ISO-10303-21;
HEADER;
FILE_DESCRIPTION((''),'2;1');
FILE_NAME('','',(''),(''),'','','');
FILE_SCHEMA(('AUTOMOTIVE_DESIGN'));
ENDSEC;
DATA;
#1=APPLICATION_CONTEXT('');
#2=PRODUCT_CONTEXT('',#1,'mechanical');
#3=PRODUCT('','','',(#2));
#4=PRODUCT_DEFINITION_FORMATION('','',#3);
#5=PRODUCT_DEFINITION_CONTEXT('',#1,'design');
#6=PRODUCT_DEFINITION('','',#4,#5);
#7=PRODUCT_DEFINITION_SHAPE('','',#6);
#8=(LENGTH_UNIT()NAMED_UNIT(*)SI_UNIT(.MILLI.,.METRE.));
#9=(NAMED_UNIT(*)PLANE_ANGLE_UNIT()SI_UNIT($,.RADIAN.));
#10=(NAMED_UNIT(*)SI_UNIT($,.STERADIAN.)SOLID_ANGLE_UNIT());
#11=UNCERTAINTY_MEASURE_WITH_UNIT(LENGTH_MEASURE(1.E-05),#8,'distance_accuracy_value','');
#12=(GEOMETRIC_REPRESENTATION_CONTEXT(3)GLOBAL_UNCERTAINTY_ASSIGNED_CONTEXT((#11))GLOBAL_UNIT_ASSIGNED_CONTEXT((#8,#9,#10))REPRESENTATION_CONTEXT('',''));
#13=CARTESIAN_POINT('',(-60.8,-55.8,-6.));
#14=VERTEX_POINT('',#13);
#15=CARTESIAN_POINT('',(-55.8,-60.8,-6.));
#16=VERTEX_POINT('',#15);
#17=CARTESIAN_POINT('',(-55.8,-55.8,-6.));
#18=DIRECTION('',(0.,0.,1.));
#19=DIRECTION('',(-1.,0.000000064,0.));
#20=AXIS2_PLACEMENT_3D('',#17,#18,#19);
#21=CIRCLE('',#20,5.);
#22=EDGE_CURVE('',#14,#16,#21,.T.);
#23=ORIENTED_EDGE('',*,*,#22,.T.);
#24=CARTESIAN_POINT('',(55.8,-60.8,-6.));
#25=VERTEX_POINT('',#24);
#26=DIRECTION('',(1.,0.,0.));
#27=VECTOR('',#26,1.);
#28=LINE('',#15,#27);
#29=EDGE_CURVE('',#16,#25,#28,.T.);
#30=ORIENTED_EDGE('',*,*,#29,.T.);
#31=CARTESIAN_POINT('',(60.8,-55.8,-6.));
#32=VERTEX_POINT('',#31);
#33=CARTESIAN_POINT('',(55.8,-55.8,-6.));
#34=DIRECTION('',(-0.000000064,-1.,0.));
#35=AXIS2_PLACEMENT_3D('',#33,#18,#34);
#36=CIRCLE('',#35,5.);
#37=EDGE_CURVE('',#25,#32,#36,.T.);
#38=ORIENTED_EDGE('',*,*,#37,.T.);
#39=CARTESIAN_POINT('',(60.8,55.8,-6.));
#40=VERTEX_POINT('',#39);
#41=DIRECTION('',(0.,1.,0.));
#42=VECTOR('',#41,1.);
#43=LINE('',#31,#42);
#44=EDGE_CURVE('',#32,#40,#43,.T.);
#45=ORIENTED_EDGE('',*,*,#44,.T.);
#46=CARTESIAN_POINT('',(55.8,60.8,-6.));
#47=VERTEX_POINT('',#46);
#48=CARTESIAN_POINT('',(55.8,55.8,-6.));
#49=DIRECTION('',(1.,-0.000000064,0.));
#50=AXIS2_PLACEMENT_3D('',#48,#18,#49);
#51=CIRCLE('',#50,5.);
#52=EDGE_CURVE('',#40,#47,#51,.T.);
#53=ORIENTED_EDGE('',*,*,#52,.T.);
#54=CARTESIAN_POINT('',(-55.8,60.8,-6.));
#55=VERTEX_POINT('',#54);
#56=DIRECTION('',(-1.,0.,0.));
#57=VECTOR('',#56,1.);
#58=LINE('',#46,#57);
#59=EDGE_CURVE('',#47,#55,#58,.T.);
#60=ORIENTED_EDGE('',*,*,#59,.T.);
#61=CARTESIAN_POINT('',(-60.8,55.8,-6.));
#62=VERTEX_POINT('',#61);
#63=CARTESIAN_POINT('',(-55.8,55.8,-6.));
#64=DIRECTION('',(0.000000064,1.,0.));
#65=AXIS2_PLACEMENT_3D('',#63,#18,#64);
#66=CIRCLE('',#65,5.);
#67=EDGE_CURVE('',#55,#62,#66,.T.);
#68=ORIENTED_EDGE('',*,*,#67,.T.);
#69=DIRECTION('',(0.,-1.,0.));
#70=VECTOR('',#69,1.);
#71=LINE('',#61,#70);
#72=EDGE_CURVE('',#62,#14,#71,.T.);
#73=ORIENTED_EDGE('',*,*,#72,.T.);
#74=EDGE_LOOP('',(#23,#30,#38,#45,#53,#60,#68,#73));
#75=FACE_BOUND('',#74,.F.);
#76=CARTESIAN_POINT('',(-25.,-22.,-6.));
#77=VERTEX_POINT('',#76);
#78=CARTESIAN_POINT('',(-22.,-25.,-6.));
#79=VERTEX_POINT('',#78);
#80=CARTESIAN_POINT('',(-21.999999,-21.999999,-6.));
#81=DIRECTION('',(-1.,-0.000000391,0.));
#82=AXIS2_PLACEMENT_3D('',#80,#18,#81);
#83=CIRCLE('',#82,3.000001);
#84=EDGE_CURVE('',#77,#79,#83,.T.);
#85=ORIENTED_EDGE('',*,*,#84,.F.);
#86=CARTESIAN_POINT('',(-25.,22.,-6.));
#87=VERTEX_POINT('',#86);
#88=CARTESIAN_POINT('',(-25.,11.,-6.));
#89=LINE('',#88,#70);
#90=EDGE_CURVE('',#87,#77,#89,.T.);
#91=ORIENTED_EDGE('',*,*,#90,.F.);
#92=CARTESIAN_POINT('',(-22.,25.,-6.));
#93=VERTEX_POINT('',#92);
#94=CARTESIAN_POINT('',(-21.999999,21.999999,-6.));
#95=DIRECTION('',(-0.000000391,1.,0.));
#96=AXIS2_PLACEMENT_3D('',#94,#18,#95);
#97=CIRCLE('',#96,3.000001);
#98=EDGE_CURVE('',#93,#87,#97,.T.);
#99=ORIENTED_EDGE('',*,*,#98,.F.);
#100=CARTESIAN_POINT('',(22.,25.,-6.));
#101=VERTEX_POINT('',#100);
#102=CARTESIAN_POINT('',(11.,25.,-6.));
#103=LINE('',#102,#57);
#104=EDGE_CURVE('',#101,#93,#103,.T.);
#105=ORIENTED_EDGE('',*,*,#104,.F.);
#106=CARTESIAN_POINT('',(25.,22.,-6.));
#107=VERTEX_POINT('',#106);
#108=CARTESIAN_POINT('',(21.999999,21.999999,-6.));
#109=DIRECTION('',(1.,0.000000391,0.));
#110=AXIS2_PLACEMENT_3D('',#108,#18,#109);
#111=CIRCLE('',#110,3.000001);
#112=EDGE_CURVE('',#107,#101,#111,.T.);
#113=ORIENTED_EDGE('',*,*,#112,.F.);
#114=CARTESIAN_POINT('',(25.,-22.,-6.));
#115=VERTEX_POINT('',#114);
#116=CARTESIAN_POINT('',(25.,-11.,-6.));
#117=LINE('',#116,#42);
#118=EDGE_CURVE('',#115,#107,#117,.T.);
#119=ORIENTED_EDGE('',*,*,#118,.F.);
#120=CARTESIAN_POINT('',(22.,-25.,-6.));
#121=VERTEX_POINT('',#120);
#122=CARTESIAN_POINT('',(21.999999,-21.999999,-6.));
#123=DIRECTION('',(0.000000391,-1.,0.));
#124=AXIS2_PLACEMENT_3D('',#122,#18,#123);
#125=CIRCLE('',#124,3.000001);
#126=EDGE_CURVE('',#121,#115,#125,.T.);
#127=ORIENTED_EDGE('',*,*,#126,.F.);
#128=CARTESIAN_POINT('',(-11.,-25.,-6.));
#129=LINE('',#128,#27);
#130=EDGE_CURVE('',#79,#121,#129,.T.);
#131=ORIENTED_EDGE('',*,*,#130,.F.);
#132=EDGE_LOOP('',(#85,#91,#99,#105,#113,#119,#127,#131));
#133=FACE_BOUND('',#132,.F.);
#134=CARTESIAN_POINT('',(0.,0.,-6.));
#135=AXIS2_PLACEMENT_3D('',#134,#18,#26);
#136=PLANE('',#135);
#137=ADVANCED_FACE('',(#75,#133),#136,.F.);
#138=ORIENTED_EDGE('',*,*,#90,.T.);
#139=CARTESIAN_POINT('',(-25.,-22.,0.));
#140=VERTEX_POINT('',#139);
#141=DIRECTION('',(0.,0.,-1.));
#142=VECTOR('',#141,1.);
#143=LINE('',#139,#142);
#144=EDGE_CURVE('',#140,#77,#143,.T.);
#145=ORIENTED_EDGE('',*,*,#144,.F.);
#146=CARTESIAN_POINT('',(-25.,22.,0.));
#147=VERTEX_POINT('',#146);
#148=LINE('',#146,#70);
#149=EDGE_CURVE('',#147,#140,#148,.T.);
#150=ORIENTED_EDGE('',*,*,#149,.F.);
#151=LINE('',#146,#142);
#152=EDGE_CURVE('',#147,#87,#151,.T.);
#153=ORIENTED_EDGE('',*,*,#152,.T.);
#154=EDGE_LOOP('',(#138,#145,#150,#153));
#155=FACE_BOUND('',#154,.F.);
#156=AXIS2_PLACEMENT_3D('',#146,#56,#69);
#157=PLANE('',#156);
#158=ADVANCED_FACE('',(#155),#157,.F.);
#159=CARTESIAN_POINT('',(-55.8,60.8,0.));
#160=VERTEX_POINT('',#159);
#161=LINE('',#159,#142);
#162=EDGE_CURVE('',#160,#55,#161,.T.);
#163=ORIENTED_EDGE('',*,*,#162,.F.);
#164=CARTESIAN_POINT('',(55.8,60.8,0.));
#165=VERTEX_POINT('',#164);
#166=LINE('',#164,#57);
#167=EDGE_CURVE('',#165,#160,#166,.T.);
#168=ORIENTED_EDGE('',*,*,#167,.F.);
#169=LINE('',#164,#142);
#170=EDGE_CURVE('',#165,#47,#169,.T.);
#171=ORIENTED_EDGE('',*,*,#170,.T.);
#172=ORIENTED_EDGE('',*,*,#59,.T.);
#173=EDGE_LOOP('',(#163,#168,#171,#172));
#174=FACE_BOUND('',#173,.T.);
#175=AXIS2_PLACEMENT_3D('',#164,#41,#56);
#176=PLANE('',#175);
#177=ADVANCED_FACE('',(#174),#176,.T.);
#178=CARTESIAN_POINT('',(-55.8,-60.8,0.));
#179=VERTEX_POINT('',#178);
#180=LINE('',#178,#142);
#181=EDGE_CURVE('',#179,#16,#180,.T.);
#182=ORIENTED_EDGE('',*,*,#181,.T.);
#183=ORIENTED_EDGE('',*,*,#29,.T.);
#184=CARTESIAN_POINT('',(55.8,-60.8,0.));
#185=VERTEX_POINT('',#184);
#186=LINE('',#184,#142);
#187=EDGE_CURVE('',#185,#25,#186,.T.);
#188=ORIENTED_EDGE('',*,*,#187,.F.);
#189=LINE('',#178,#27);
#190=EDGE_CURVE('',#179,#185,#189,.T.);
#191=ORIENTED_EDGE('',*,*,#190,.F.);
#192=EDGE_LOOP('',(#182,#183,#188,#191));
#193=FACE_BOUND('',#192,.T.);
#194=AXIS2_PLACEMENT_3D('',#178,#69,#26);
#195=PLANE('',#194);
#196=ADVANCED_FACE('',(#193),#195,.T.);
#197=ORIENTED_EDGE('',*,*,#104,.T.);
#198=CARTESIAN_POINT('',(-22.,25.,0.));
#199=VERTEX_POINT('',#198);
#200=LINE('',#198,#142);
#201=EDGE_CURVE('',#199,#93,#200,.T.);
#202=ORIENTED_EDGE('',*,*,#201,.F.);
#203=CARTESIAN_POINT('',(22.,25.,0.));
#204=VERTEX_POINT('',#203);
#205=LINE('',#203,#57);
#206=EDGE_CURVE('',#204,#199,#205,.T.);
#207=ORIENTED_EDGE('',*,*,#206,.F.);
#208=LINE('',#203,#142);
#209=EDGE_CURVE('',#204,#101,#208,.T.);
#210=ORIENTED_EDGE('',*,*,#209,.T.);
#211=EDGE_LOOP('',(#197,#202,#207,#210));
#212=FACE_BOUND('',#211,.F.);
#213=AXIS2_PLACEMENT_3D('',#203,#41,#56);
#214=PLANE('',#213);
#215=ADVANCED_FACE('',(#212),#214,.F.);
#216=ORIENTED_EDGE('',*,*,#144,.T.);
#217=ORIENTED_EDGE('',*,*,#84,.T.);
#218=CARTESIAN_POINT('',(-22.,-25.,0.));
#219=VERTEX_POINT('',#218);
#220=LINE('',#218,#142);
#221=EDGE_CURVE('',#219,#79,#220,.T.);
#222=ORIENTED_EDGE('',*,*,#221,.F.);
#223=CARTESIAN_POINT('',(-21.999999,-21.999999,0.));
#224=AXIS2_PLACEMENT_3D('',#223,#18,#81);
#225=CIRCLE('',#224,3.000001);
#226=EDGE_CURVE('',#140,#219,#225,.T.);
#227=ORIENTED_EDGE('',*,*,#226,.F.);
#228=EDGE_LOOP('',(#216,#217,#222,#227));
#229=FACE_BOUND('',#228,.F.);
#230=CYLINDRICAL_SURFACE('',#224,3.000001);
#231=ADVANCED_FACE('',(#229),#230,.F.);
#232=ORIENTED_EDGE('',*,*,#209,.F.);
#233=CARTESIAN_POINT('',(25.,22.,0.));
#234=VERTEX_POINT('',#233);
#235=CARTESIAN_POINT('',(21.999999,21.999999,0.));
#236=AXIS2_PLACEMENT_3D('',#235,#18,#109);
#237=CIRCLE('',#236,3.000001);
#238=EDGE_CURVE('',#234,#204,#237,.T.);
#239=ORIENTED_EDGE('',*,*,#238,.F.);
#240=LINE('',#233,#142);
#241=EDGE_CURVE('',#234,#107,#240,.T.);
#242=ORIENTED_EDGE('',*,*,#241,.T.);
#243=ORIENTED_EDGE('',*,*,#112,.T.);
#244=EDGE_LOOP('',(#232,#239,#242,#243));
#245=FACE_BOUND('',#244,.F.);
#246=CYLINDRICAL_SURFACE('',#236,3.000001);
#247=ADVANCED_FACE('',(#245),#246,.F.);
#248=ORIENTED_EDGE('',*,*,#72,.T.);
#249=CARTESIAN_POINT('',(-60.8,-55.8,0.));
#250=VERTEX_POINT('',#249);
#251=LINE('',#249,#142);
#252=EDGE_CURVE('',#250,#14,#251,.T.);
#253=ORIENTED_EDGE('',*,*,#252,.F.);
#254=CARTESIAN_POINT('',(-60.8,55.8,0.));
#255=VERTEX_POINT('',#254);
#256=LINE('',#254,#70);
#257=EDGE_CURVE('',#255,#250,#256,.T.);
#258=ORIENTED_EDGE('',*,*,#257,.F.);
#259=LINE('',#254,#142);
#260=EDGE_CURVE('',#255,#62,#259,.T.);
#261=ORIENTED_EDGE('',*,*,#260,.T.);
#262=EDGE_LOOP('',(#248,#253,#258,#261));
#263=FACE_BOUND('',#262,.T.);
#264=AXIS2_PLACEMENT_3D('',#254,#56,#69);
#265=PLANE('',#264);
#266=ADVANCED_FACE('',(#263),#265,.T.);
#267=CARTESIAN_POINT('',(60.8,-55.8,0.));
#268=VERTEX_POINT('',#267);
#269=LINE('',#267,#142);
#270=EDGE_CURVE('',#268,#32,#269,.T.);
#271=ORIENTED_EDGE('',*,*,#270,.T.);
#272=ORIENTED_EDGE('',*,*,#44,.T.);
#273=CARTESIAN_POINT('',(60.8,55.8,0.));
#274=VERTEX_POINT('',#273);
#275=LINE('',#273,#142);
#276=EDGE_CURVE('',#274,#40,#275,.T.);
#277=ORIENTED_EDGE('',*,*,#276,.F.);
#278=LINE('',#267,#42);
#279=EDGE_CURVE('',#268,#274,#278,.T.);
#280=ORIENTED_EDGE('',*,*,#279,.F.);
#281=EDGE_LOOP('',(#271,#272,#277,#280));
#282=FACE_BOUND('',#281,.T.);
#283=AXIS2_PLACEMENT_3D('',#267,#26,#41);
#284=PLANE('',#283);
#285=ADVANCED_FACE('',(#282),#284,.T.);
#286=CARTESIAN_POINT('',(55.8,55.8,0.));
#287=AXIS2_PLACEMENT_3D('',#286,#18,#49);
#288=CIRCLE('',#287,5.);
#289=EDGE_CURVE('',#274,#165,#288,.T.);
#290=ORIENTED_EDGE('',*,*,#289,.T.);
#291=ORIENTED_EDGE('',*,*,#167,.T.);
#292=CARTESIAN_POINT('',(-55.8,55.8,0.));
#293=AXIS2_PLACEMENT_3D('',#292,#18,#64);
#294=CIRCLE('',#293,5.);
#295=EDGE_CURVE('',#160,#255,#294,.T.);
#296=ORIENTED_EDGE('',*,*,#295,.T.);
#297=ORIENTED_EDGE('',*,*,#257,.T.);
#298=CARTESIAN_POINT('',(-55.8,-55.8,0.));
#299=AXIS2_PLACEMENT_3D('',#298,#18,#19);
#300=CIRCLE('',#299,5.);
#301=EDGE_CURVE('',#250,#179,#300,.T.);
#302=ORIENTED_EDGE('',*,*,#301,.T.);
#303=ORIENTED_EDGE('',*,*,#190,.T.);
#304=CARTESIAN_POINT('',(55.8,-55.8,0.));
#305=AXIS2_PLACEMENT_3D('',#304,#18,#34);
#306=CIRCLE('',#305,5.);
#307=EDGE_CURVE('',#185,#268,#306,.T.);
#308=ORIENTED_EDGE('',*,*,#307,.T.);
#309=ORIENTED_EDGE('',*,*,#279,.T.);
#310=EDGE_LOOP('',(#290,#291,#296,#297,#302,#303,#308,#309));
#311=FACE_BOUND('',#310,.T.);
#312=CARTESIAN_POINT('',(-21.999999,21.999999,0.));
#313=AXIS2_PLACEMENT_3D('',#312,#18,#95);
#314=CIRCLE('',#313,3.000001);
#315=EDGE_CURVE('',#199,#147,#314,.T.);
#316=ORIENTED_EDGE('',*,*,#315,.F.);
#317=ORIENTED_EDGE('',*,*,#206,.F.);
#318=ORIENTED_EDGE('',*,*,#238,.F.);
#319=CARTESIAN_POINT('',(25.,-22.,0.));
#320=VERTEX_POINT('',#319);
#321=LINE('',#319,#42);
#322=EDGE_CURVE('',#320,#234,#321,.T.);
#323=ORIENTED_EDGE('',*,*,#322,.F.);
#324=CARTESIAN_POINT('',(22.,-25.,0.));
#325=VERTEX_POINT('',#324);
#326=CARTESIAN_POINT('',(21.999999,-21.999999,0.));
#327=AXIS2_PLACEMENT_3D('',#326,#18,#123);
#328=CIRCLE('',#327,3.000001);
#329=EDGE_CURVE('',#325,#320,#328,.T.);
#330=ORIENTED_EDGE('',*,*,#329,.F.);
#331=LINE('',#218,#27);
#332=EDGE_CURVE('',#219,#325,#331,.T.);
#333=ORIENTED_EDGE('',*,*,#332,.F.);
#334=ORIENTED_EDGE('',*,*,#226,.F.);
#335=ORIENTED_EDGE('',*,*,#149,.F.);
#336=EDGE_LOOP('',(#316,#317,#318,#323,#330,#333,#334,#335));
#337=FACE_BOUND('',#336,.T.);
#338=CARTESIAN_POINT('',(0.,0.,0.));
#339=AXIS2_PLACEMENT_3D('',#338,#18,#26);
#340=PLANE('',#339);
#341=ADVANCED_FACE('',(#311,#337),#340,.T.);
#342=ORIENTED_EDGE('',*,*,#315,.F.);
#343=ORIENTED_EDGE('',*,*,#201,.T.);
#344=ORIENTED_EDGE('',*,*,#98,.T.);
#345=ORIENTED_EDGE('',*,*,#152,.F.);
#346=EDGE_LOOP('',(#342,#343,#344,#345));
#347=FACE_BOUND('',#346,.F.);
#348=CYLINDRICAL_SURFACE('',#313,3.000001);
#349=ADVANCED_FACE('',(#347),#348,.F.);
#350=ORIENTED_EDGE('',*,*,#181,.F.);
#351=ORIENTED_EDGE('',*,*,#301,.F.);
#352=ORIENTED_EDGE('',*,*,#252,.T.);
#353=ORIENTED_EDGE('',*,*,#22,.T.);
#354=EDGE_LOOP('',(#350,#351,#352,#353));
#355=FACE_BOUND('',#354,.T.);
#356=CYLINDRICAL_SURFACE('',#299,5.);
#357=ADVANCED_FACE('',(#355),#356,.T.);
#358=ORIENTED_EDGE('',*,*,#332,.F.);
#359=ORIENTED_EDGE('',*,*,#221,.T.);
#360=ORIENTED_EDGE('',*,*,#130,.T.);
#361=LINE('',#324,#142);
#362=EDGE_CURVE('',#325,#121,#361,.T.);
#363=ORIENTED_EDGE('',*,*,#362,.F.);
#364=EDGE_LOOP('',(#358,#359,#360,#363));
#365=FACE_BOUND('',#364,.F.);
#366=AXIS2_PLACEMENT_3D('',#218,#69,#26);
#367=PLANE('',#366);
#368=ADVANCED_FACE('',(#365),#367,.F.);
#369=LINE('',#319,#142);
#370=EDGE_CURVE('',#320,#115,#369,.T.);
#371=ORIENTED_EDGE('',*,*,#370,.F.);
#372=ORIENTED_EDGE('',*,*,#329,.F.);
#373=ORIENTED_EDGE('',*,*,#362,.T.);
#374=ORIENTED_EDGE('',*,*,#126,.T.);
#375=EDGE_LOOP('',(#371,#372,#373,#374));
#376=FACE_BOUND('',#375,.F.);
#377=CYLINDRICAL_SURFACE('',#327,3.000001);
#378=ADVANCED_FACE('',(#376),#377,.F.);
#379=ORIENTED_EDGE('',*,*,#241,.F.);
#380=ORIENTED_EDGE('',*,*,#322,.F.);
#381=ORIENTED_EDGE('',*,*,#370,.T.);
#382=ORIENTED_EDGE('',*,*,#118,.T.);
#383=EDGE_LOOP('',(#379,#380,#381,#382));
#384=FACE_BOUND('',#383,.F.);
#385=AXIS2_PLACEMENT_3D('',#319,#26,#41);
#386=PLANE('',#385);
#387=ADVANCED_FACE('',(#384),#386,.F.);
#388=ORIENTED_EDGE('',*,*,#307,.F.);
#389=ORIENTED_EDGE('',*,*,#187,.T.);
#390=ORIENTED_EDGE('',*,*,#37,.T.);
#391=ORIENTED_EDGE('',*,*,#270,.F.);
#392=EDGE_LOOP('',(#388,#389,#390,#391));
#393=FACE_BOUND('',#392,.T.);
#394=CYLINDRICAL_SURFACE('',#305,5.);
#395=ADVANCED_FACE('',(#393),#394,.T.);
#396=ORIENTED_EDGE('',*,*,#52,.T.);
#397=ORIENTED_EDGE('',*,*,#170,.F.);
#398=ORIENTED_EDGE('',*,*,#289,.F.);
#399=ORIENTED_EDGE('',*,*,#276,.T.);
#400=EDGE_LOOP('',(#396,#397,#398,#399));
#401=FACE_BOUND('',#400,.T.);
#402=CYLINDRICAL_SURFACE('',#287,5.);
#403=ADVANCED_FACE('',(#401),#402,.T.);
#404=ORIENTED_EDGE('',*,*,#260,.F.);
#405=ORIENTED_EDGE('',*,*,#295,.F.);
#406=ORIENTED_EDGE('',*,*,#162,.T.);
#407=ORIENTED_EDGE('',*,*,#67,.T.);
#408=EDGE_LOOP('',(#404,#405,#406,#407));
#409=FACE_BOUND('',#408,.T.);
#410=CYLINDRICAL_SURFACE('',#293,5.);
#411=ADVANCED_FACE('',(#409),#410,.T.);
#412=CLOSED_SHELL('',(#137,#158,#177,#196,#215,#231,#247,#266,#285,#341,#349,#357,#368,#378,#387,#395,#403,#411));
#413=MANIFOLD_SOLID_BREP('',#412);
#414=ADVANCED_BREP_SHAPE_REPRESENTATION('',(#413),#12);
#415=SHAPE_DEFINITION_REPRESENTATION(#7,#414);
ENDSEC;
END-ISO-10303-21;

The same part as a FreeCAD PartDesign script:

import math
import FreeCAD as App
import Part
import Sketcher
from FreeCAD import Vector
Q = App.Units.Quantity

doc = App.newDocument("Part")
body = doc.addObject("PartDesign::Body", "Body")

sketch1 = body.newObject("Sketcher::SketchObject", "Sketch")
sketch1.AttachmentSupport = (doc.getObject("XY_Plane"), [""])
sketch1.MapMode = "FlatFace"
sketch1.addGeometry([
    Part.LineSegment(Vector(-55.8, -60.8, 0), Vector(55.8, -60.8, 0)),
    Part.ArcOfCircle(Part.Circle(Vector(55.8, -55.8, 0), Vector(0, 0, 1), 5), math.radians(-90), math.radians(0)),
    Part.LineSegment(Vector(60.8, -55.8, 0), Vector(60.8, 55.8, 0)),
    Part.ArcOfCircle(Part.Circle(Vector(55.8, 55.8, 0), Vector(0, 0, 1), 5), math.radians(0), math.radians(90)),
    Part.LineSegment(Vector(55.8, 60.8, 0), Vector(-55.8, 60.8, 0)),
    Part.ArcOfCircle(Part.Circle(Vector(-55.8, 55.8, 0), Vector(0, 0, 1), 5), math.radians(90), math.radians(180)),
    Part.LineSegment(Vector(-60.8, 55.8, 0), Vector(-60.8, -55.8, 0)),
    Part.ArcOfCircle(Part.Circle(Vector(-55.8, -55.8, 0), Vector(0, 0, 1), 5), math.radians(180), math.radians(270)),
], False)
sketch1.addConstraint([
    Sketcher.Constraint("Tangent", 0, 2, 1, 1),
    Sketcher.Constraint("Tangent", 1, 2, 2, 1),
    Sketcher.Constraint("Tangent", 2, 2, 3, 1),
    Sketcher.Constraint("Tangent", 3, 2, 4, 1),
    Sketcher.Constraint("Tangent", 4, 2, 5, 1),
    Sketcher.Constraint("Tangent", 5, 2, 6, 1),
    Sketcher.Constraint("Tangent", 6, 2, 7, 1),
    Sketcher.Constraint("Tangent", 7, 2, 0, 1),
    Sketcher.Constraint("Horizontal", 0),
    Sketcher.Constraint("Vertical", 2),
    Sketcher.Constraint("Horizontal", 4),
    Sketcher.Constraint("Vertical", 6),
    Sketcher.Constraint("Equal", 1, 3),
    Sketcher.Constraint("Equal", 3, 5),
    Sketcher.Constraint("Equal", 5, 7),
    Sketcher.Constraint("Symmetric", 1, 3, 5, 3, -1, 1),
    Sketcher.Constraint("Equal", 4, 2),
    Sketcher.Constraint("Radius", 1, Q("5 mm")),
    Sketcher.Constraint("DistanceX", 0, 1, 0, 2, Q("111.6 mm")),
])
pad1 = body.newObject("PartDesign::Pad", "Pad")
pad1.Profile = sketch1
pad1.Length = 6
pad1.Reversed = True

sketch2 = body.newObject("Sketcher::SketchObject", "Sketch001")
sketch2.AttachmentSupport = (doc.getObject("XY_Plane"), [""])
sketch2.MapMode = "FlatFace"
sketch2.addGeometry([
    Part.LineSegment(Vector(-22, -25, 0), Vector(22, -25, 0)),
    Part.ArcOfCircle(Part.Circle(Vector(22, -22, 0), Vector(0, 0, 1), 3), math.radians(-90), math.radians(0)),
    Part.LineSegment(Vector(25, -22, 0), Vector(25, 22, 0)),
    Part.ArcOfCircle(Part.Circle(Vector(22, 22, 0), Vector(0, 0, 1), 3), math.radians(0), math.radians(90)),
    Part.LineSegment(Vector(22, 25, 0), Vector(-22, 25, 0)),
    Part.ArcOfCircle(Part.Circle(Vector(-22, 22, 0), Vector(0, 0, 1), 3), math.radians(90), math.radians(180)),
    Part.LineSegment(Vector(-25, 22, 0), Vector(-25, -22, 0)),
    Part.ArcOfCircle(Part.Circle(Vector(-22, -22, 0), Vector(0, 0, 1), 3), math.radians(-180), math.radians(-90)),
], False)
sketch2.addConstraint([
    Sketcher.Constraint("Tangent", 0, 2, 1, 1),
    Sketcher.Constraint("Tangent", 1, 2, 2, 1),
    Sketcher.Constraint("Tangent", 2, 2, 3, 1),
    Sketcher.Constraint("Tangent", 3, 2, 4, 1),
    Sketcher.Constraint("Tangent", 4, 2, 5, 1),
    Sketcher.Constraint("Tangent", 5, 2, 6, 1),
    Sketcher.Constraint("Tangent", 6, 2, 7, 1),
    Sketcher.Constraint("Tangent", 7, 2, 0, 1),
    Sketcher.Constraint("Horizontal", 0),
    Sketcher.Constraint("Vertical", 2),
    Sketcher.Constraint("Horizontal", 4),
    Sketcher.Constraint("Vertical", 6),
    Sketcher.Constraint("Equal", 1, 3),
    Sketcher.Constraint("Equal", 3, 5),
    Sketcher.Constraint("Equal", 5, 7),
    Sketcher.Constraint("Symmetric", 1, 3, 5, 3, -1, 1),
    Sketcher.Constraint("Equal", 4, 2),
    Sketcher.Constraint("Radius", 1, Q("3.000001 mm")),
    Sketcher.Constraint("DistanceX", 0, 1, 0, 2, Q("44 mm")),
])
pocket1 = body.newObject("PartDesign::Pocket", "Pocket")
pocket1.Profile = sketch2
pocket1.Length = 10

doc.recompute()
